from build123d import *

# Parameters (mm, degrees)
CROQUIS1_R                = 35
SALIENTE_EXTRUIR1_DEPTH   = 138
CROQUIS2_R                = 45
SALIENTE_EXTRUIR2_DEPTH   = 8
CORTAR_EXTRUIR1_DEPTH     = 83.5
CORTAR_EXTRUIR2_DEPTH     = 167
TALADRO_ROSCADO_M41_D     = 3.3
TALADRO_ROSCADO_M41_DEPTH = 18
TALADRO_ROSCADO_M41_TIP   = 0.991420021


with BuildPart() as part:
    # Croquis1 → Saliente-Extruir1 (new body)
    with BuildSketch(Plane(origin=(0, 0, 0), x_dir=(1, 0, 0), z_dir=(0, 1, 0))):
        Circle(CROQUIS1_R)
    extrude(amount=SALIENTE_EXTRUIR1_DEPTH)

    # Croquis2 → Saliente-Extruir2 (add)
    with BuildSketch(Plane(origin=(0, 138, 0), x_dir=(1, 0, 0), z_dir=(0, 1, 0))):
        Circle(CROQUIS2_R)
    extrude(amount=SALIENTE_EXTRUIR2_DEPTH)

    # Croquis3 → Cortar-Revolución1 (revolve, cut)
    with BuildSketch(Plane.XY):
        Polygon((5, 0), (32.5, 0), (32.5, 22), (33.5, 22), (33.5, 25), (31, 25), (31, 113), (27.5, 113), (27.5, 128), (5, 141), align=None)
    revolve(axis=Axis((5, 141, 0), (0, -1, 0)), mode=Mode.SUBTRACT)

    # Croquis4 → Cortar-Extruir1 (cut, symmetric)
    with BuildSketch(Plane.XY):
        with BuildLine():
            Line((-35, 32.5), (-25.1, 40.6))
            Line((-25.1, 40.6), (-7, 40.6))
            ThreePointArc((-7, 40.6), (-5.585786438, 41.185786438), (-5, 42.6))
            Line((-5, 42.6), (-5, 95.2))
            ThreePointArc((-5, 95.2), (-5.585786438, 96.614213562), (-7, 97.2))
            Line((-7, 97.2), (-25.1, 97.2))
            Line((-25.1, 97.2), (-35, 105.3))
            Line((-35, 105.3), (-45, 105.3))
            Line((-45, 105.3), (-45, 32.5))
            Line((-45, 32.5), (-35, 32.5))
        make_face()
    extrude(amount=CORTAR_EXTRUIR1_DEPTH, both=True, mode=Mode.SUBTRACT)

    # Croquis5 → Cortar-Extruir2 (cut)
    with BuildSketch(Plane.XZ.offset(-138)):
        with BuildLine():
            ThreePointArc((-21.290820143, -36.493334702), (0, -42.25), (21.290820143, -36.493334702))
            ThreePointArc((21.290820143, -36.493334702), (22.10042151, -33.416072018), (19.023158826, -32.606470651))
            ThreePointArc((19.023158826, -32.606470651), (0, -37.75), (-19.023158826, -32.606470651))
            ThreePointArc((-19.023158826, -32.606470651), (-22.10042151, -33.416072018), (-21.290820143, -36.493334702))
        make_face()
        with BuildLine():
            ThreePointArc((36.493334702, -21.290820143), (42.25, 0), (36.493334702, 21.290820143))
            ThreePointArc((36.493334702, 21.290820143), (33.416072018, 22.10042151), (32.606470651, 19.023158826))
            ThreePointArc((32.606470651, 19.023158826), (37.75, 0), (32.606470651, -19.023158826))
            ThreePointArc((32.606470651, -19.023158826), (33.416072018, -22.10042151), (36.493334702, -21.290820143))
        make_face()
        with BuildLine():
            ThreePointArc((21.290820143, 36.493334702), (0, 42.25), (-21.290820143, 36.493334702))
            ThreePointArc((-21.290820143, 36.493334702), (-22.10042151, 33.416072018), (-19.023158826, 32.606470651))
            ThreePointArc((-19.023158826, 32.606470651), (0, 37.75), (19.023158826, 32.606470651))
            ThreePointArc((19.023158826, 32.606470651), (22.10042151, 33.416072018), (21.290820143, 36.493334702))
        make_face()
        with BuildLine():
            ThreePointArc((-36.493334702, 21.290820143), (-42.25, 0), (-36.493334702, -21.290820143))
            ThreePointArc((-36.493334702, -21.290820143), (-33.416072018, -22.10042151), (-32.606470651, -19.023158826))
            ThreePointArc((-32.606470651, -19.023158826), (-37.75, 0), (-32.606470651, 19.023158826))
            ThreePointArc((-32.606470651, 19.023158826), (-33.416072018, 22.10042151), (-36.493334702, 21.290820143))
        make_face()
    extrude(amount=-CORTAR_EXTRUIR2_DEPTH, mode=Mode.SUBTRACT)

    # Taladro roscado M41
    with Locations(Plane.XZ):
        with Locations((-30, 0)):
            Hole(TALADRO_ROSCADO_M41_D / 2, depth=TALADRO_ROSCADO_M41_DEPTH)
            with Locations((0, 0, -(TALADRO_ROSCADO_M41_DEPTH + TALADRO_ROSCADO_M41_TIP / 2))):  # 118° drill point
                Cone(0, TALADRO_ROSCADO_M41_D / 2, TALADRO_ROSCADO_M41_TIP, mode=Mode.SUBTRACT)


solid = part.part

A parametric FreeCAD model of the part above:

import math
import FreeCAD as App
import Part
import Sketcher


def add_polygon(sketch, points):
    """Adds a closed chain of lines whose ends are joined by coincident constraints."""
    first, n = sketch.GeometryCount, len(points)
    for a, b in zip(points, points[1:] + points[:1]):
        sketch.addGeometry(Part.LineSegment(App.Vector(*a, 0), App.Vector(*b, 0)), False)
    for i in range(n):
        sketch.addConstraint(Sketcher.Constraint("Coincident", first + i, 2, first + (i + 1) % n, 1))

doc = App.newDocument("Part")
body = doc.addObject("PartDesign::Body", "Body")

# Sketch on XZ plane
sketch1 = doc.addObject("Sketcher::SketchObject", "Sketch")
body.addObject(sketch1)
sketch1.AttachmentSupport = (doc.XZ_Plane, [""])
sketch1.MapMode = "FlatFace"
sketch1.addGeometry(Part.Circle(App.Vector(0, 0, 0), App.Vector(0, 0, 1), 35), False)
sketch1.addConstraint([
    Sketcher.Constraint("Coincident", 0, 3, -1, 1),
    Sketcher.Constraint("Diameter", 0, 70.0),
])
pad1 = doc.addObject("PartDesign::Pad", "Pad")
body.addObject(pad1)
pad1.Profile = sketch1
pad1.Length = 138
pad1.Reversed = True

# Sketch on XZ plane
sketch2 = doc.addObject("Sketcher::SketchObject", "Sketch001")
body.addObject(sketch2)
sketch2.AttachmentSupport = (doc.XZ_Plane, [""])
sketch2.MapMode = "FlatFace"
sketch2.AttachmentOffset = App.Placement(App.Vector(0, 0, -138), App.Rotation())
sketch2.addGeometry(Part.Circle(App.Vector(0, 0, 0), App.Vector(0, 0, 1), 45), False)
sketch2.addConstraint([
    Sketcher.Constraint("Coincident", 0, 3, -1, 1),
    Sketcher.Constraint("Diameter", 0, 90.0),
])
pad2 = doc.addObject("PartDesign::Pad", "Pad001")
body.addObject(pad2)
pad2.Profile = sketch2
pad2.Length = 8
pad2.Reversed = True

# Sketch on XY plane
sketch3 = doc.addObject("Sketcher::SketchObject", "Sketch002")
body.addObject(sketch3)
sketch3.AttachmentSupport = (doc.XY_Plane, [""])
sketch3.MapMode = "FlatFace"
add_polygon(sketch3, [(5, 0), (32.5, 0), (32.5, 22), (33.5, 22), (33.5, 25), (31, 25), (31, 113), (27.5, 113), (27.5, 128), (5, 141)])  # lines 0-9
sketch3.addGeometry(Part.LineSegment(App.Vector(5, 141, 0), App.Vector(5, 0, 0)), True)  # axis
sketch3.addConstraint([
    Sketcher.Constraint("Horizontal", 0),
    Sketcher.Constraint("Vertical", 1),
    Sketcher.Constraint("Horizontal", 2),
    Sketcher.Constraint("Vertical", 3),
    Sketcher.Constraint("Horizontal", 4),
    Sketcher.Constraint("Vertical", 5),
    Sketcher.Constraint("Horizontal", 6),
    Sketcher.Constraint("Vertical", 7),
    Sketcher.Constraint("Vertical", 9),
    Sketcher.Constraint("Vertical", 10),
    Sketcher.Constraint("Coincident", 10, 1, 8, 2),
    Sketcher.Constraint("PointOnObject", 0, 2, -1),
    Sketcher.Constraint("PointOnObject", 10, 2, -1),
    Sketcher.Constraint("DistanceX", 2, 1, 2, 2, 1.0),
    Sketcher.Constraint("DistanceY", 1, 1, 1, 2, 22.0),
    Sketcher.Constraint("DistanceY", 3, 1, 3, 2, 3.0),
    Sketcher.Constraint("DistanceY", 5, 1, 5, 2, 88.0),
    Sketcher.Constraint("DistanceY", 7, 1, 7, 2, 15.0),
    Sketcher.Constraint("DistanceY", 9, 2, 9, 1, 141.0),
    Sketcher.Constraint("DistanceX", 0, 1, 0, 2, 27.5),
    Sketcher.Constraint("DistanceX", 4, 2, 4, 1, 2.5),
    Sketcher.Constraint("DistanceX", 6, 2, 6, 1, 3.5),
    Sketcher.Constraint("DistanceX", -1, 1, 4, 2, 31.0),
])
groove = doc.addObject("PartDesign::Groove", "Groove")
body.addObject(groove)
groove.Profile = sketch3
groove.ReferenceAxis = (sketch3, ["Axis0"])
groove.Angle = 360

# Sketch on XY plane
sketch4 = doc.addObject("Sketcher::SketchObject", "Sketch003")
body.addObject(sketch4)
sketch4.AttachmentSupport = (doc.XY_Plane, [""])
sketch4.MapMode = "FlatFace"
sketch4.addGeometry([
    Part.LineSegment(App.Vector(-35, 32.5, 0), App.Vector(-25.1, 40.6, 0)),  # 0
    Part.LineSegment(App.Vector(-25.1, 40.6, 0), App.Vector(-7, 40.6, 0)),  # 1
    Part.ArcOfCircle(Part.Circle(App.Vector(-7, 42.6, 0), App.Vector(0, 0, 1), 2), math.radians(-90), math.radians(0)),  # 2
    Part.LineSegment(App.Vector(-5, 42.6, 0), App.Vector(-5, 95.2, 0)),  # 3
    Part.ArcOfCircle(Part.Circle(App.Vector(-7, 95.2, 0), App.Vector(0, 0, 1), 2), math.radians(0), math.radians(90)),  # 4
    Part.LineSegment(App.Vector(-7, 97.2, 0), App.Vector(-25.1, 97.2, 0)),  # 5
    Part.LineSegment(App.Vector(-25.1, 97.2, 0), App.Vector(-35, 105.3, 0)),  # 6
    Part.LineSegment(App.Vector(-35, 105.3, 0), App.Vector(-45, 105.3, 0)),  # 7
    Part.LineSegment(App.Vector(-45, 105.3, 0), App.Vector(-45, 32.5, 0)),  # 8
    Part.LineSegment(App.Vector(-45, 32.5, 0), App.Vector(-35, 32.5, 0)),  # 9
], False)
sketch4.addConstraint([
    Sketcher.Constraint("Coincident", 0, 2, 1, 1),
    Sketcher.Constraint("Tangent", 1, 2, 2, 1),
    Sketcher.Constraint("Tangent", 2, 2, 3, 1),
    Sketcher.Constraint("Tangent", 3, 2, 4, 1),
    Sketcher.Constraint("Tangent", 4, 2, 5, 1),
    Sketcher.Constraint("Coincident", 5, 2, 6, 1),
    Sketcher.Constraint("Coincident", 6, 2, 7, 1),
    Sketcher.Constraint("Coincident", 7, 2, 8, 1),
    Sketcher.Constraint("Coincident", 8, 2, 9, 1),
    Sketcher.Constraint("Coincident", 9, 2, 0, 1),
    Sketcher.Constraint("Horizontal", 1),
    Sketcher.Constraint("Vertical", 3),
    Sketcher.Constraint("Horizontal", 5),
    Sketcher.Constraint("Horizontal", 7),
    Sketcher.Constraint("Vertical", 8),
    Sketcher.Constraint("Horizontal", 9),
    Sketcher.Constraint("Equal", 2, 4),
    Sketcher.Constraint("Vertical", 0, 2, 5, 2),
    Sketcher.Constraint("Vertical", 6, 2, 9, 2),
    Sketcher.Constraint("Equal", 0, 6),
    Sketcher.Constraint("Radius", 2, 2.0),
    Sketcher.Constraint("DistanceX", 7, 2, 7, 1, 10.0),
    Sketcher.Constraint("DistanceX", 1, 1, 1, 2, 18.1),
    Sketcher.Constraint("DistanceY", 3, 1, 3, 2, 52.6),
    Sketcher.Constraint("DistanceY", 8, 2, 8, 1, 72.8),
    Sketcher.Constraint("DistanceX", 2, 3, -1, 1, 7.0),
    Sketcher.Constraint("DistanceX", 6, 2, -1, 1, 35.0),
    Sketcher.Constraint("DistanceY", -1, 1, 2, 3, 42.6),
])
pocket1 = doc.addObject("PartDesign::Pocket", "Pocket")
body.addObject(pocket1)
pocket1.Profile = sketch4
pocket1.Length = 167
pocket1.Midplane = True

# Sketch on XZ plane
sketch5 = doc.addObject("Sketcher::SketchObject", "Sketch004")
body.addObject(sketch5)
sketch5.AttachmentSupport = (doc.XZ_Plane, [""])
sketch5.MapMode = "FlatFace"
sketch5.AttachmentOffset = App.Placement(App.Vector(0, 0, -138), App.Rotation())
sketch5.addGeometry([
    Part.ArcOfCircle(Part.Circle(App.Vector(0, 0, 0), App.Vector(0, 0, 1), 42.3), math.radians(-120), math.radians(-60)),  # 0
    Part.ArcOfCircle(Part.Circle(App.Vector(20.2, -34.5, 0), App.Vector(0, 0, 1), 2.2), math.radians(-60), math.radians(120)),  # 1
    Part.ArcOfCircle(Part.Circle(App.Vector(0, 0, 0), App.Vector(0, 0, 1), 37.8), math.radians(-120), math.radians(-60)),  # 2
    Part.ArcOfCircle(Part.Circle(App.Vector(-20.2, -34.5, 0), App.Vector(0, 0, 1), 2.2), math.radians(60), math.radians(240)),  # 3
    Part.ArcOfCircle(Part.Circle(App.Vector(0, 0, 0), App.Vector(0, 0, 1), 42.3), math.radians(-30), math.radians(30)),  # 4
    Part.ArcOfCircle(Part.Circle(App.Vector(34.5, 20.2, 0), App.Vector(0, 0, 1), 2.2), math.radians(30), math.radians(210)),  # 5
    Part.ArcOfCircle(Part.Circle(App.Vector(0, 0, 0), App.Vector(0, 0, 1), 37.8), math.radians(-30), math.radians(30)),  # 6
    Part.ArcOfCircle(Part.Circle(App.Vector(34.5, -20.2, 0), App.Vector(0, 0, 1), 2.2), math.radians(150), math.radians(330)),  # 7
    Part.ArcOfCircle(Part.Circle(App.Vector(0, 0, 0), App.Vector(0, 0, 1), 42.3), math.radians(60), math.radians(120)),  # 8
    Part.ArcOfCircle(Part.Circle(App.Vector(-20.2, 34.5, 0), App.Vector(0, 0, 1), 2.2), math.radians(120), math.radians(300)),  # 9
    Part.ArcOfCircle(Part.Circle(App.Vector(0, 0, 0), App.Vector(0, 0, 1), 37.8), math.radians(60), math.radians(120)),  # 10
    Part.ArcOfCircle(Part.Circle(App.Vector(20.2, 34.5, 0), App.Vector(0, 0, 1), 2.2), math.radians(-120), math.radians(60)),  # 11
    Part.ArcOfCircle(Part.Circle(App.Vector(0, 0, 0), App.Vector(0, 0, 1), 42.3), math.radians(150), math.radians(210)),  # 12
    Part.ArcOfCircle(Part.Circle(App.Vector(-34.5, -20.2, 0), App.Vector(0, 0, 1), 2.2), math.radians(-150), math.radians(30)),  # 13
    Part.ArcOfCircle(Part.Circle(App.Vector(0, 0, 0), App.Vector(0, 0, 1), 37.8), math.radians(150), math.radians(210)),  # 14
    Part.ArcOfCircle(Part.Circle(App.Vector(-34.5, 20.2, 0), App.Vector(0, 0, 1), 2.2), math.radians(-30), math.radians(150)),  # 15
], False)
sketch5.addConstraint([
    Sketcher.Constraint("Tangent", 0, 2, 1, 1),
    Sketcher.Constraint("Tangent", 1, 2, 2, 2),
    Sketcher.Constraint("Tangent", 2, 1, 3, 1),
    Sketcher.Constraint("Tangent", 3, 2, 0, 1),
    Sketcher.Constraint("Tangent", 4, 2, 5, 1),
    Sketcher.Constraint("Tangent", 5, 2, 6, 2),
    Sketcher.Constraint("Tangent", 6, 1, 7, 1),
    Sketcher.Constraint("Tangent", 7, 2, 4, 1),
    Sketcher.Constraint("Tangent", 8, 2, 9, 1),
    Sketcher.Constraint("Tangent", 9, 2, 10, 2),
    Sketcher.Constraint("Tangent", 10, 1, 11, 1),
    Sketcher.Constraint("Tangent", 11, 2, 8, 1),
    Sketcher.Constraint("Tangent", 12, 2, 13, 1),
    Sketcher.Constraint("Tangent", 13, 2, 14, 2),
    Sketcher.Constraint("Tangent", 14, 1, 15, 1),
    Sketcher.Constraint("Tangent", 15, 2, 12, 1),
    Sketcher.Constraint("Coincident", 0, 3, -1, 1),
    Sketcher.Constraint("Coincident", 2, 3, -1, 1),
    Sketcher.Constraint("Coincident", 4, 3, -1, 1),
    Sketcher.Constraint("Coincident", 6, 3, -1, 1),
    Sketcher.Constraint("Coincident", 8, 3, -1, 1),
    Sketcher.Constraint("Coincident", 10, 3, -1, 1),
    Sketcher.Constraint("Coincident", 12, 3, -1, 1),
    Sketcher.Constraint("Coincident", 14, 3, -1, 1),
    Sketcher.Constraint("Equal", 0, 4),
    Sketcher.Constraint("Equal", 3, 5),
    Sketcher.Constraint("Equal", 4, 8),
    Sketcher.Constraint("Equal", 7, 9),
    Sketcher.Constraint("Equal", 8, 12),
    Sketcher.Constraint("Equal", 11, 13),
    Sketcher.Constraint("Horizontal", 1, 3, 3, 3),
    Sketcher.Constraint("Horizontal", 9, 3, 11, 3),
    Sketcher.Constraint("Horizontal", 7, 3, 13, 3),
    Sketcher.Constraint("Horizontal", 5, 3, 15, 3),
    Sketcher.Constraint("Vertical", 5, 3, 7, 3),
    Sketcher.Constraint("Vertical", 3, 3, 9, 3),
    Sketcher.Constraint("Radius", 0, 42.25),
    Sketcher.Constraint("Radius", 1, 2.25),
    Sketcher.Constraint("DistanceX", -1, 1, 1, 3, 20.156989),
    Sketcher.Constraint("DistanceY", -1, 1, 5, 3, 20.156989),
])
pocket2 = doc.addObject("PartDesign::Pocket", "Pocket001")
body.addObject(pocket2)
pocket2.Profile = sketch5
pocket2.Length = 167

# Sketch on XZ plane
sketch6 = doc.addObject("Sketcher::SketchObject", "Sketch005")
body.addObject(sketch6)
sketch6.AttachmentSupport = (doc.XZ_Plane, [""])
sketch6.MapMode = "FlatFace"
sketch6.addGeometry(Part.Circle(App.Vector(-30, 0, 0), App.Vector(0, 0, 1), 1.6), False)
sketch6.addConstraint([
    Sketcher.Constraint("PointOnObject", 0, 3, -1),
    Sketcher.Constraint("Diameter", 0, 3.3),
    Sketcher.Constraint("DistanceX", 0, 3, -1, 1, 30.0),
])
doc.recompute()
hole = doc.addObject("PartDesign::Hole", "Hole")
body.addObject(hole)
hole.Profile = sketch6
hole.ThreadType = "None"
hole.Diameter = 3.3
hole.DepthType = "Dimension"
hole.Depth = 18
hole.DrillPoint = "Angled"
hole.DrillPointAngle = 118

doc.recompute()
